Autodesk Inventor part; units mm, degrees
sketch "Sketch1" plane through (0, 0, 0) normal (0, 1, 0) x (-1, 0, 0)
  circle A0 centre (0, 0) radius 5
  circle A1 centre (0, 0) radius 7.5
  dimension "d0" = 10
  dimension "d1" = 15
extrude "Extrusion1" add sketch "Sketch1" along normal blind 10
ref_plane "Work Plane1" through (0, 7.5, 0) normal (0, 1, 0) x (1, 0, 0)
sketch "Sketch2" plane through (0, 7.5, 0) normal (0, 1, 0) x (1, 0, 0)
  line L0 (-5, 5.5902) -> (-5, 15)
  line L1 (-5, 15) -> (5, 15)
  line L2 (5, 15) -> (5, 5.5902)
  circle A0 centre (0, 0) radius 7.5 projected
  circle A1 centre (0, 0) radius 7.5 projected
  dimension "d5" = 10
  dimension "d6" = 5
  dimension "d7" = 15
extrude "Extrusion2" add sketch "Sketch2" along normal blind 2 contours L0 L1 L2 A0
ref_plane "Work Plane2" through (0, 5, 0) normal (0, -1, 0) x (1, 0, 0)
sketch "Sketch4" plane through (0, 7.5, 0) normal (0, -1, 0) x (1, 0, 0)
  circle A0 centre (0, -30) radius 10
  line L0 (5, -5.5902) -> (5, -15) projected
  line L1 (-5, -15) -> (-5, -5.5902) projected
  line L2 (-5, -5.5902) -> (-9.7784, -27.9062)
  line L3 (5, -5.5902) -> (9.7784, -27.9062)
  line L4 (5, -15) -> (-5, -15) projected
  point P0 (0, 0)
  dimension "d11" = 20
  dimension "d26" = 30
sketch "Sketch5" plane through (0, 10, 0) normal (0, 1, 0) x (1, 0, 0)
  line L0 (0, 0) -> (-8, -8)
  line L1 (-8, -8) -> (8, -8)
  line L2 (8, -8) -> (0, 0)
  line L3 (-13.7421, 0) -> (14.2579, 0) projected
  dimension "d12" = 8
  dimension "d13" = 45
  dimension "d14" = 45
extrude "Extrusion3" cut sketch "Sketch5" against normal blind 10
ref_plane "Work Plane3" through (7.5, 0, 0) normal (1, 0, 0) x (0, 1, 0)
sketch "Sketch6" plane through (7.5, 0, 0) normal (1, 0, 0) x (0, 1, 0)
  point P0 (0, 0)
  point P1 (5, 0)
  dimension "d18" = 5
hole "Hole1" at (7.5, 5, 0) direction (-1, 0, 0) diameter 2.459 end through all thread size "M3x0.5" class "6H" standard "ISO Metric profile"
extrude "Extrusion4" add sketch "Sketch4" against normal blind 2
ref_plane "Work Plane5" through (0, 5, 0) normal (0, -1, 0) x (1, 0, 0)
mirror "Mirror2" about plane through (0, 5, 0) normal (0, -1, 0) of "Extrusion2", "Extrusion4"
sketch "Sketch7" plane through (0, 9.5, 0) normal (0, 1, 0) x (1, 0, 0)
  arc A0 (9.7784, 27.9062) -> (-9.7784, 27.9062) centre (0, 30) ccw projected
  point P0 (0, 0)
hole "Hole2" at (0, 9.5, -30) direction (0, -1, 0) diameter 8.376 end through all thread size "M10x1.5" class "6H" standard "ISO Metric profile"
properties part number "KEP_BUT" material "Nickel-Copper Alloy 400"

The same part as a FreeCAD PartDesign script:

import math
import FreeCAD as App
import Part
import Sketcher
Q = App.Units.Quantity

doc = App.newDocument("Part")
body = doc.addObject("PartDesign::Body", "Body")

# Sketch on XZ plane
sketch1 = body.newObject("Sketcher::SketchObject", "Sketch")
sketch1.AttachmentSupport = (doc.getObject("XZ_Plane"), [""])
sketch1.MapMode = "FlatFace"
sketch1.addGeometry([
    Part.Circle(App.Vector(0, 0, 0), App.Vector(0, 0, 1), 8),
    Part.Circle(App.Vector(0, 0, 0), App.Vector(0, 0, 1), 5),
], False)
sketch1.addConstraint([
    Sketcher.Constraint("Coincident", 0, 3, -1, 1),
    Sketcher.Constraint("Coincident", 1, 3, -1, 1),
    Sketcher.Constraint("Diameter", 0, Q("15 mm")),
    Sketcher.Constraint("Diameter", 1, Q("10 mm")),
])
pad1 = body.newObject("PartDesign::Pad", "Pad")
pad1.Profile = sketch1
pad1.Length = 10
pad1.Reversed = True

# Sketch on XZ plane
sketch2 = body.newObject("Sketcher::SketchObject", "Sketch001")
sketch2.AttachmentSupport = (doc.getObject("XZ_Plane"), [""])
sketch2.MapMode = "FlatFace"
sketch2.AttachmentOffset = App.Placement(App.Vector(0, 0, -7.5), App.Rotation())
sketch2.addGeometry([
    Part.LineSegment(App.Vector(-5, -15, 0), App.Vector(-5, -6, 0)),
    Part.ArcOfCircle(Part.Circle(App.Vector(0, 0, 0), App.Vector(0, 0, 1), 8), math.radians(-132), math.radians(-48)),
    Part.LineSegment(App.Vector(5, -6, 0), App.Vector(5, -15, 0)),
    Part.LineSegment(App.Vector(5, -15, 0), App.Vector(-5, -15, 0)),
], False)
sketch2.addConstraint([
    Sketcher.Constraint("Coincident", 0, 2, 1, 1),
    Sketcher.Constraint("Coincident", 1, 2, 2, 1),
    Sketcher.Constraint("Coincident", 2, 2, 3, 1),
    Sketcher.Constraint("Coincident", 3, 2, 0, 1),
    Sketcher.Constraint("Vertical", 0),
    Sketcher.Constraint("Vertical", 2),
    Sketcher.Constraint("Horizontal", 3),
    Sketcher.Constraint("Coincident", 1, 3, -1, 1),
    Sketcher.Constraint("Horizontal", 0, 2, 1, 2),
    Sketcher.Constraint("Radius", 1, Q("7.5 mm")),
    Sketcher.Constraint("DistanceX", 3, 2, 3, 1, Q("10 mm")),
    Sketcher.Constraint("DistanceY", 2, 2, -1, 1, Q("15 mm")),
])
pad2 = body.newObject("PartDesign::Pad", "Pad001")
pad2.Profile = sketch2
pad2.Length = 2
pad2.Reversed = True

# Sketch on XZ plane
sketch3 = body.newObject("Sketcher::SketchObject", "Sketch002")
sketch3.AttachmentSupport = (doc.getObject("XZ_Plane"), [""])
sketch3.MapMode = "FlatFace"
sketch3.AttachmentOffset = App.Placement(App.Vector(0, 0, -10), App.Rotation())
sketch3.addGeometry([
    Part.LineSegment(App.Vector(8, 8, 0), App.Vector(0, 0, 0)),
    Part.LineSegment(App.Vector(0, 0, 0), App.Vector(-8, 8, 0)),
    Part.LineSegment(App.Vector(-8, 8, 0), App.Vector(8, 8, 0)),
], False)
sketch3.addConstraint([
    Sketcher.Constraint("Coincident", 0, 2, 1, 1),
    Sketcher.Constraint("Coincident", 1, 2, 2, 1),
    Sketcher.Constraint("Coincident", 2, 2, 0, 1),
    Sketcher.Constraint("Horizontal", 2),
    Sketcher.Constraint("Coincident", 0, 2, -1, 1),
    Sketcher.Constraint("Perpendicular", 0, 1),
    Sketcher.Constraint("Equal", 0, 1),
    Sketcher.Constraint("DistanceX", 1, 2, -1, 1, Q("8 mm")),
])
pocket1 = body.newObject("PartDesign::Pocket", "Pocket")
pocket1.Profile = sketch3
pocket1.Length = 10
pocket1.Reversed = True

# Sketch on YZ plane
sketch4 = body.newObject("Sketcher::SketchObject", "Sketch003")
sketch4.AttachmentSupport = (doc.getObject("YZ_Plane"), [""])
sketch4.MapMode = "FlatFace"
sketch4.AttachmentOffset = App.Placement(App.Vector(0, 0, 7.5), App.Rotation())
sketch4.addGeometry(Part.Circle(App.Vector(5, 0, 0), App.Vector(0, 0, 1), 1.2), False)
sketch4.addConstraint([
    Sketcher.Constraint("PointOnObject", 0, 3, -1),
    Sketcher.Constraint("Diameter", 0, Q("2.459 mm")),
    Sketcher.Constraint("DistanceX", -1, 1, 0, 3, Q("5 mm")),
])
doc.recompute()
hole = body.newObject("PartDesign::Hole", "Hole")
hole.Profile = sketch4
hole.ThreadType = "None"
hole.Diameter = 2.459
hole.DepthType = "ThroughAll"

# Sketch on XZ plane
sketch5 = body.newObject("Sketcher::SketchObject", "Sketch004")
sketch5.AttachmentSupport = (doc.getObject("XZ_Plane"), [""])
sketch5.MapMode = "FlatFace"
sketch5.AttachmentOffset = App.Placement(App.Vector(0, 0, -7.5), App.Rotation())
sketch5.addGeometry([
    Part.ArcOfCircle(Part.Circle(App.Vector(0, -30, 0), App.Vector(0, 0, 1), 10), math.radians(168), math.radians(372)),  # 0
    Part.LineSegment(App.Vector(10, -28, 0), App.Vector(5, -6, 0)),  # 1
    Part.LineSegment(App.Vector(5, -6, 0), App.Vector(5, -15, 0)),  # 2
    Part.LineSegment(App.Vector(5, -15, 0), App.Vector(-5, -15, 0)),  # 3
    Part.LineSegment(App.Vector(-5, -15, 0), App.Vector(-5, -6, 0)),  # 4
    Part.LineSegment(App.Vector(-5, -6, 0), App.Vector(-10, -28, 0)),  # 5
], False)
sketch5.addConstraint([
    Sketcher.Constraint("Tangent", 0, 2, 1, 1),
    Sketcher.Constraint("Coincident", 1, 2, 2, 1),
    Sketcher.Constraint("Coincident", 2, 2, 3, 1),
    Sketcher.Constraint("Coincident", 3, 2, 4, 1),
    Sketcher.Constraint("Coincident", 4, 2, 5, 1),
    Sketcher.Constraint("Tangent", 5, 2, 0, 1),
    Sketcher.Constraint("Vertical", 2),
    Sketcher.Constraint("Horizontal", 3),
    Sketcher.Constraint("Vertical", 4),
    Sketcher.Constraint("Symmetric", 1, 2, 4, 2, -2),
    Sketcher.Constraint("PointOnObject", 0, 3, -2),
    Sketcher.Constraint("Radius", 0, Q("10 mm")),
    Sketcher.Constraint("DistanceY", 0, 3, -1, 1, Q("30 mm")),
    Sketcher.Constraint("DistanceX", 3, 2, 3, 1, Q("10 mm")),
    Sketcher.Constraint("DistanceY", 2, 2, -1, 1, Q("15 mm")),
    Sketcher.Constraint("DistanceY", 2, 2, 2, 1, Q("9.4098 mm")),
])
pad3 = body.newObject("PartDesign::Pad", "Pad002")
pad3.Profile = sketch5
pad3.Length = 2
pad3.Reversed = True
doc.recompute()

datumplane = body.newObject("PartDesign::Plane", "DatumPlane")
datumplane.AttachmentSupport = (doc.getObject("XZ_Plane"), [""])
datumplane.MapMode = "FlatFace"
datumplane.AttachmentOffset = App.Placement(App.Vector(0, 0, -5), App.Rotation())
mirrored = body.newObject("PartDesign::Mirrored", "Mirrored")
mirrored.Originals = [pad2, pad3]
mirrored.MirrorPlane = (datumplane, [""])
body.Tip = mirrored

# Sketch on XZ plane
sketch6 = body.newObject("Sketcher::SketchObject", "Sketch005")
sketch6.AttachmentSupport = (doc.getObject("XZ_Plane"), [""])
sketch6.MapMode = "FlatFace"
sketch6.AttachmentOffset = App.Placement(App.Vector(0, 0, -9.5), App.Rotation())
sketch6.addGeometry(Part.Circle(App.Vector(0, -30, 0), App.Vector(0, 0, 1), 4.2), False)
sketch6.addConstraint([
    Sketcher.Constraint("PointOnObject", 0, 3, -2),
    Sketcher.Constraint("Diameter", 0, Q("8.376 mm")),
    Sketcher.Constraint("DistanceY", 0, 3, -1, 1, Q("30 mm")),
])
doc.recompute()
hole2 = body.newObject("PartDesign::Hole", "Hole001")
hole2.Profile = sketch6
hole2.ThreadType = "None"
hole2.Diameter = 8.376
hole2.DepthType = "ThroughAll"
hole2.Reversed = True

doc.recompute()
